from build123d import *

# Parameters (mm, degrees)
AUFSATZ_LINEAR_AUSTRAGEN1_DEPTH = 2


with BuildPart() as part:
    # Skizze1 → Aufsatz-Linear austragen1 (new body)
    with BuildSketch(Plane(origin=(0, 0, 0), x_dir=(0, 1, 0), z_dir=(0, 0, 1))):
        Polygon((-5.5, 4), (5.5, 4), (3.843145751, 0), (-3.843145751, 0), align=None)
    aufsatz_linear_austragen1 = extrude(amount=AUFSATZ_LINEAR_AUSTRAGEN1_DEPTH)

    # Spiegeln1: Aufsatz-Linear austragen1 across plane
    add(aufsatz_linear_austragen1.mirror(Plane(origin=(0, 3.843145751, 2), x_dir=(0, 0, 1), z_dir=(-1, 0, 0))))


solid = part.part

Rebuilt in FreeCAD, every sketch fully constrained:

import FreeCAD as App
import Part
import Sketcher
Q = App.Units.Quantity


def add_polygon(sketch, points):
    """Adds a closed chain of lines whose ends are joined by coincident constraints."""
    first, n = sketch.GeometryCount, len(points)
    for a, b in zip(points, points[1:] + points[:1]):
        sketch.addGeometry(Part.LineSegment(App.Vector(*a, 0), App.Vector(*b, 0)), False)
    for i in range(n):
        sketch.addConstraint(Sketcher.Constraint("Coincident", first + i, 2, first + (i + 1) % n, 1))

doc = App.newDocument("Part")
body = doc.addObject("PartDesign::Body", "Body")

# Sketch on XY plane
sketch1 = body.newObject("Sketcher::SketchObject", "Sketch")
sketch1.AttachmentSupport = (doc.getObject("XY_Plane"), [""])
sketch1.MapMode = "FlatFace"
add_polygon(sketch1, [(-4, 5.5), (-4, -5.5), (0, -3.8), (0, 3.8)])  # lines 0-3
sketch1.addConstraint([
    Sketcher.Constraint("Vertical", 0),
    Sketcher.Constraint("Vertical", 2),
    Sketcher.Constraint("Symmetric", 1, 2, 2, 2, -1, 1),
    Sketcher.Constraint("Equal", 1, 3),
    Sketcher.Constraint("DistanceY", 0, 2, 0, 1, 11.0),
    Sketcher.Constraint("DistanceX", 0, 2, -1, 1, 4.0),
    Sketcher.Constraint("Angle", 1, Q("22.5 deg")),
])
pad1 = body.newObject("PartDesign::Pad", "Pad")
pad1.Profile = sketch1
pad1.Length = 2
doc.recompute()

mirrored = body.newObject("PartDesign::Mirrored", "Mirrored")
mirrored.Originals = [pad1]
mirrored.MirrorPlane = (doc.getObject("YZ_Plane"), [""])
body.Tip = mirrored

doc.recompute()
